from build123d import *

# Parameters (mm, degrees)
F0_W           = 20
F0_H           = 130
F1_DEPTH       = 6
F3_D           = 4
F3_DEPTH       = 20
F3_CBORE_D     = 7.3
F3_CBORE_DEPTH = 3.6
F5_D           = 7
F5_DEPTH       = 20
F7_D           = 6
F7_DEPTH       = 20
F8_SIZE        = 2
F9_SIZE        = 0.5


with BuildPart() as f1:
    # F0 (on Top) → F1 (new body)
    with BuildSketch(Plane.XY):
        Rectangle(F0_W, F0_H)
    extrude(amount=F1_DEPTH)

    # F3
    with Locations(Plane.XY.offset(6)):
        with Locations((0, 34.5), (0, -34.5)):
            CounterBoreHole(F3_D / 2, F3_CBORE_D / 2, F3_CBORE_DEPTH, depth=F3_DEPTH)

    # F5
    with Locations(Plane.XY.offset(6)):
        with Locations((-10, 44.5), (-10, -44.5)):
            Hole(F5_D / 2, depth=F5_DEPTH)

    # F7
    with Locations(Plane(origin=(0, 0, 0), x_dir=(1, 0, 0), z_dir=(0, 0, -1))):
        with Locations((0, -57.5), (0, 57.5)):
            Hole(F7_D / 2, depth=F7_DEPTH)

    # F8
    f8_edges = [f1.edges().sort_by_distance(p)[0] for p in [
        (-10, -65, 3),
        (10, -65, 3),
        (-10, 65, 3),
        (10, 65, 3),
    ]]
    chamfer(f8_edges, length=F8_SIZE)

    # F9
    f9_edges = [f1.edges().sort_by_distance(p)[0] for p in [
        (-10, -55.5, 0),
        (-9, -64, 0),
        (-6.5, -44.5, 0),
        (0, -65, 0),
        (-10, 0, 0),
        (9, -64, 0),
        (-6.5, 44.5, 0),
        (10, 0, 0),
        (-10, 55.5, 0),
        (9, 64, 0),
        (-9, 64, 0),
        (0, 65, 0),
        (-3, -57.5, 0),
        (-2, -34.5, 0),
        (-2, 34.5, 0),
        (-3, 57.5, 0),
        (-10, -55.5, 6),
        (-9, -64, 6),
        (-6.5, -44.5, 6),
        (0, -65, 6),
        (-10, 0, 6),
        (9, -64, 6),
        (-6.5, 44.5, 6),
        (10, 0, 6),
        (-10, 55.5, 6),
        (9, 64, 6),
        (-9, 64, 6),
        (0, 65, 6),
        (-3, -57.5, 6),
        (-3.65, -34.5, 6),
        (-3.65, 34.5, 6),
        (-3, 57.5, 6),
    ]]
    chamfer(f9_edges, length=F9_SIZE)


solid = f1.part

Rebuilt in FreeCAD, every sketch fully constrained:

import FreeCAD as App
import Part
import Sketcher
from FreeCAD import Vector


def edges_at(feature, points):
    """Names of the edges that pass closest to the given points."""
    edges = feature.Shape.Edges
    near = lambda p: min(range(len(edges)), key=lambda i: edges[i].distToShape(Part.Vertex(*p))[0])
    return sorted({f"Edge{near(p) + 1}" for p in points})

doc = App.newDocument("Part")
body = doc.addObject("PartDesign::Body", "Body")

# Sketch on XY plane
sketch1 = doc.addObject("Sketcher::SketchObject", "Sketch")
body.addObject(sketch1)
sketch1.AttachmentSupport = (doc.XY_Plane, [""])
sketch1.MapMode = "FlatFace"
sketch1.addGeometry([
    Part.LineSegment(Vector(-10, 65, 0), Vector(-10, -65, 0)),
    Part.LineSegment(Vector(-10, -65, 0), Vector(10, -65, 0)),
    Part.LineSegment(Vector(10, -65, 0), Vector(10, 65, 0)),
    Part.LineSegment(Vector(10, 65, 0), Vector(-10, 65, 0)),
], False)
sketch1.addConstraint([
    Sketcher.Constraint("Coincident", 0, 2, 1, 1),
    Sketcher.Constraint("Coincident", 1, 2, 2, 1),
    Sketcher.Constraint("Coincident", 2, 2, 3, 1),
    Sketcher.Constraint("Coincident", 3, 2, 0, 1),
    Sketcher.Constraint("Vertical", 0),
    Sketcher.Constraint("Horizontal", 1),
    Sketcher.Constraint("Vertical", 2),
    Sketcher.Constraint("Horizontal", 3),
    Sketcher.Constraint("Symmetric", 0, 2, 2, 2, -1, 1),
    Sketcher.Constraint("DistanceX", 1, 1, 1, 2, 20.0),
    Sketcher.Constraint("DistanceY", 0, 2, 0, 1, 130.0),
])
pad1 = doc.addObject("PartDesign::Pad", "Pad")
body.addObject(pad1)
pad1.Profile = sketch1
pad1.Length = 6

# Sketch on XY plane
sketch2 = doc.addObject("Sketcher::SketchObject", "Sketch001")
body.addObject(sketch2)
sketch2.AttachmentSupport = (doc.XY_Plane, [""])
sketch2.MapMode = "FlatFace"
sketch2.AttachmentOffset = App.Placement(Vector(0, 0, 6), App.Rotation())
sketch2.addGeometry([
    Part.Circle(Vector(0, 34.5, 0), Vector(0, 0, 1), 2),
    Part.Circle(Vector(0, -34.5, 0), Vector(0, 0, 1), 2),
], False)
sketch2.addConstraint([
    Sketcher.Constraint("Equal", 0, 1),
    Sketcher.Constraint("Symmetric", 0, 3, 1, 3, -1, 1),
    Sketcher.Constraint("PointOnObject", 0, 3, -2),
    Sketcher.Constraint("Diameter", 0, 4.0),
    Sketcher.Constraint("DistanceY", 1, 3, 0, 3, 69.0),
])
doc.recompute()
hole = doc.addObject("PartDesign::Hole", "Hole")
body.addObject(hole)
hole.Profile = sketch2
hole.ThreadType = "None"
hole.Diameter = 4
hole.DepthType = "Dimension"
hole.Depth = 20
hole.DrillPoint = "Flat"
hole.HoleCutType = "Counterbore"
hole.HoleCutDiameter = 7.3
hole.HoleCutDepth = 3.6

# Sketch on XY plane
sketch3 = doc.addObject("Sketcher::SketchObject", "Sketch002")
body.addObject(sketch3)
sketch3.AttachmentSupport = (doc.XY_Plane, [""])
sketch3.MapMode = "FlatFace"
sketch3.AttachmentOffset = App.Placement(Vector(0, 0, 6), App.Rotation())
sketch3.addGeometry([
    Part.Circle(Vector(-10, 44.5, 0), Vector(0, 0, 1), 3.5),
    Part.Circle(Vector(-10, -44.5, 0), Vector(0, 0, 1), 3.5),
], False)
sketch3.addConstraint([
    Sketcher.Constraint("Equal", 0, 1),
    Sketcher.Constraint("Symmetric", 0, 3, 1, 3, -1),
    Sketcher.Constraint("Diameter", 0, 7.0),
    Sketcher.Constraint("DistanceX", 0, 3, -1, 1, 10.0),
    Sketcher.Constraint("DistanceY", 1, 3, 0, 3, 89.0),
])
doc.recompute()
hole2 = doc.addObject("PartDesign::Hole", "Hole001")
body.addObject(hole2)
hole2.Profile = sketch3
hole2.ThreadType = "None"
hole2.Diameter = 7
hole2.DepthType = "Dimension"
hole2.Depth = 20
hole2.DrillPoint = "Flat"

# Sketch on XY plane
sketch4 = doc.addObject("Sketcher::SketchObject", "Sketch003")
body.addObject(sketch4)
sketch4.AttachmentSupport = (doc.XY_Plane, [""])
sketch4.MapMode = "FlatFace"
sketch4.addGeometry([
    Part.Circle(Vector(0, 57.5, 0), Vector(0, 0, 1), 3),
    Part.Circle(Vector(0, -57.5, 0), Vector(0, 0, 1), 3),
], False)
sketch4.addConstraint([
    Sketcher.Constraint("Equal", 0, 1),
    Sketcher.Constraint("Symmetric", 0, 3, 1, 3, -1, 1),
    Sketcher.Constraint("PointOnObject", 0, 3, -2),
    Sketcher.Constraint("Diameter", 0, 6.0),
    Sketcher.Constraint("DistanceY", 1, 3, 0, 3, 115.0),
])
doc.recompute()
hole3 = doc.addObject("PartDesign::Hole", "Hole002")
body.addObject(hole3)
hole3.Profile = sketch4
hole3.ThreadType = "None"
hole3.Diameter = 6
hole3.DepthType = "Dimension"
hole3.Depth = 20
hole3.DrillPoint = "Flat"
hole3.Reversed = True
doc.recompute()

chamfer = doc.addObject("PartDesign::Chamfer", "Chamfer")
body.addObject(chamfer)
chamfer.Base = (hole3, edges_at(hole3, [
    (-10, -65, 3),
    (10, -65, 3),
    (-10, 65, 3),
    (10, 65, 3),
]))
chamfer.Size = 2
doc.recompute()

chamfer2 = doc.addObject("PartDesign::Chamfer", "Chamfer001")
body.addObject(chamfer2)
chamfer2.Base = (chamfer, edges_at(chamfer, [
    (-10, -55.5, 0),
    (-9, -64, 0),
    (-6.5, -44.5, 0),
    (0, -65, 0),
    (-10, 0, 0),
    (9, -64, 0),
    (-6.5, 44.5, 0),
    (10, 0, 0),
    (-10, 55.5, 0),
    (9, 64, 0),
    (-9, 64, 0),
    (0, 65, 0),
    (3, -57.5, 0),
    (2, -34.5, 0),
    (2, 34.5, 0),
    (3, 57.5, 0),
    (-10, -55.5, 6),
    (-9, -64, 6),
    (-6.5, -44.5, 6),
    (0, -65, 6),
    (-10, 0, 6),
    (9, -64, 6),
    (-6.5, 44.5, 6),
    (10, 0, 6),
    (-10, 55.5, 6),
    (9, 64, 6),
    (-9, 64, 6),
    (0, 65, 6),
    (3, -57.5, 6),
    (-3.65, -34.5, 6),
    (-3.65, 34.5, 6),
    (3, 57.5, 6),
]))
chamfer2.Size = 0.5

doc.recompute()
